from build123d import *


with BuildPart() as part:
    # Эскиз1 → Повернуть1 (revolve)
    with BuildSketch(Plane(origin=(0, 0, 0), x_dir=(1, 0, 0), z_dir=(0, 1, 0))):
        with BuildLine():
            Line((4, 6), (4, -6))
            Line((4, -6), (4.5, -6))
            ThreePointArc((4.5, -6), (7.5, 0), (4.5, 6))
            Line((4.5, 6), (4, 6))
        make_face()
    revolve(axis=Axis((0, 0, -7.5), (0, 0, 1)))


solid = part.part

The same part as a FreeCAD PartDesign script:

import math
import FreeCAD as App
import Part
import Sketcher

V = App.Vector

doc = App.newDocument("Part")
params = doc.addObject("Spreadsheet::Sheet", "Params")
for row, (alias, value) in enumerate([
    ("sketch1_radius", "7.5 mm"),
    ("sketch1_height", "12 mm"),
    ("sketch1_width", "0.5 mm"),
    ("revolution_angle", "360 deg"),
], start=1):
    params.set(f"A{row}", alias)
    params.set(f"B{row}", "=" + value)
    params.setAlias(f"B{row}", alias)

body = doc.addObject("PartDesign::Body", "Body")

# Sketch on XZ plane
sketch1 = body.newObject("Sketcher::SketchObject", "Sketch")
sketch1.AttachmentSupport = (doc.getObject("XZ_Plane"), [""])
sketch1.MapMode = "FlatFace"
sketch1.addGeometry(Part.LineSegment(V(4, -6, 0), V(4, 6, 0)), False)
sketch1.addGeometry(Part.LineSegment(V(4, 6, 0), V(4.5, 6, 0)), False)
sketch1.addGeometry(Part.ArcOfCircle(Part.Circle(V(0, 0, 0), V(0, 0, 1), 7.5), math.radians(-53), math.radians(53)), False)
sketch1.addGeometry(Part.LineSegment(V(4.5, -6, 0), V(4, -6, 0)), False)
sketch1.addConstraint(Sketcher.Constraint("Coincident", 0, 2, 1, 1))
sketch1.addConstraint(Sketcher.Constraint("Coincident", 1, 2, 2, 2))
sketch1.addConstraint(Sketcher.Constraint("Coincident", 2, 1, 3, 1))
sketch1.addConstraint(Sketcher.Constraint("Coincident", 3, 2, 0, 1))
sketch1.addConstraint(Sketcher.Constraint("Vertical", 0))
sketch1.addConstraint(Sketcher.Constraint("Horizontal", 1))
sketch1.addConstraint(Sketcher.Constraint("Horizontal", 3))
sketch1.addConstraint(Sketcher.Constraint("Coincident", 2, 3, -1, 1))
sketch1.addConstraint(Sketcher.Constraint("Vertical", 1, 2, 2, 1))
sketch1.addConstraint(Sketcher.Constraint("Radius", 2, 7.5))
sketch1.addConstraint(Sketcher.Constraint("DistanceY", 0, 1, 0, 2, 12.0))
sketch1.addConstraint(Sketcher.Constraint("DistanceX", 1, 1, 1, 2, 0.5))
sketch1.setExpression("Constraints[9]", "Params.sketch1_radius")
sketch1.setExpression("Constraints[10]", "Params.sketch1_height")
sketch1.setExpression("Constraints[11]", "Params.sketch1_width")
revolution = body.newObject("PartDesign::Revolution", "Revolution")
revolution.Profile = sketch1
revolution.ReferenceAxis = (sketch1, ["V_Axis"])
revolution.setExpression("Angle", "Params.revolution_angle")

doc.recompute()
